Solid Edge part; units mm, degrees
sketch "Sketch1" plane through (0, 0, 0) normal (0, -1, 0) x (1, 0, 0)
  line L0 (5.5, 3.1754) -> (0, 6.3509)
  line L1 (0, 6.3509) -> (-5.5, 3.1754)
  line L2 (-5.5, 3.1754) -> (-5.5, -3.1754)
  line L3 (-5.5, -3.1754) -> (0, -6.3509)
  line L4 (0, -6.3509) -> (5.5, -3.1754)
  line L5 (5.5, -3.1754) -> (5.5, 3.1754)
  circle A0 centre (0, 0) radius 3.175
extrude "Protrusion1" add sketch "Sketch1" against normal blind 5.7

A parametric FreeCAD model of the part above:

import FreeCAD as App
import Part
import Sketcher

V = App.Vector
Q = App.Units.Quantity


def add_polygon(sketch, points):
    """Adds a closed chain of lines whose ends are joined by coincident constraints."""
    first, n = sketch.GeometryCount, len(points)
    for a, b in zip(points, points[1:] + points[:1]):
        sketch.addGeometry(Part.LineSegment(App.Vector(*a, 0), App.Vector(*b, 0)), False)
    for i in range(n):
        sketch.addConstraint(Sketcher.Constraint("Coincident", first + i, 2, first + (i + 1) % n, 1))

doc = App.newDocument("Part")
params = doc.addObject("Spreadsheet::Sheet", "Params")
for row, (alias, value) in enumerate([
    ("sketch1_diameter", "0.25 in"),
    ("pad1_length", "0.2244094 in"),
], start=1):
    params.set(f"A{row}", alias)
    params.set(f"B{row}", "=" + value)
    params.setAlias(f"B{row}", alias)

body = doc.addObject("PartDesign::Body", "Body")

# Sketch on XZ plane
sketch1 = body.newObject("Sketcher::SketchObject", "Sketch")
sketch1.AttachmentSupport = (doc.getObject("XZ_Plane"), [""])
sketch1.MapMode = "FlatFace"
add_polygon(sketch1, [(5.5, -3.2), (5.5, 3.2), (0, 6.4), (-5.5, 3.2), (-5.5, -3.2), (0, -6.4)])  # lines 0-5
sketch1.addGeometry(Part.Circle(V(0, 0, 0), V(0, 0, 1), 3.2), False)  # 6
sketch1.addConstraint([
    Sketcher.Constraint("Vertical", 0),
    Sketcher.Constraint("Vertical", 3),
    Sketcher.Constraint("Coincident", 6, 3, -1, 1),
    Sketcher.Constraint("Symmetric", 0, 2, 3, 2, -1, 1),
    Sketcher.Constraint("Symmetric", 1, 2, 4, 2, -1, 1),
    Sketcher.Constraint("PointOnObject", 1, 2, -2),
    Sketcher.Constraint("Parallel", 2, 5),
    Sketcher.Constraint("Horizontal", 0, 2, 2, 2),
    Sketcher.Constraint("Diameter", 6, Q("0.25 in")),
    Sketcher.Constraint("Angle", 1, Q("149.9994 deg")),
    Sketcher.Constraint("DistanceY", 0, 1, 0, 2, 6.3508),
    Sketcher.Constraint("Distance", 1, 6.351),
])
sketch1.setExpression("Constraints[14]", "Params.sketch1_diameter")
pad1 = body.newObject("PartDesign::Pad", "Pad")
pad1.Profile = sketch1
pad1.setExpression("Length", "Params.pad1_length")
pad1.Reversed = True

doc.recompute()
